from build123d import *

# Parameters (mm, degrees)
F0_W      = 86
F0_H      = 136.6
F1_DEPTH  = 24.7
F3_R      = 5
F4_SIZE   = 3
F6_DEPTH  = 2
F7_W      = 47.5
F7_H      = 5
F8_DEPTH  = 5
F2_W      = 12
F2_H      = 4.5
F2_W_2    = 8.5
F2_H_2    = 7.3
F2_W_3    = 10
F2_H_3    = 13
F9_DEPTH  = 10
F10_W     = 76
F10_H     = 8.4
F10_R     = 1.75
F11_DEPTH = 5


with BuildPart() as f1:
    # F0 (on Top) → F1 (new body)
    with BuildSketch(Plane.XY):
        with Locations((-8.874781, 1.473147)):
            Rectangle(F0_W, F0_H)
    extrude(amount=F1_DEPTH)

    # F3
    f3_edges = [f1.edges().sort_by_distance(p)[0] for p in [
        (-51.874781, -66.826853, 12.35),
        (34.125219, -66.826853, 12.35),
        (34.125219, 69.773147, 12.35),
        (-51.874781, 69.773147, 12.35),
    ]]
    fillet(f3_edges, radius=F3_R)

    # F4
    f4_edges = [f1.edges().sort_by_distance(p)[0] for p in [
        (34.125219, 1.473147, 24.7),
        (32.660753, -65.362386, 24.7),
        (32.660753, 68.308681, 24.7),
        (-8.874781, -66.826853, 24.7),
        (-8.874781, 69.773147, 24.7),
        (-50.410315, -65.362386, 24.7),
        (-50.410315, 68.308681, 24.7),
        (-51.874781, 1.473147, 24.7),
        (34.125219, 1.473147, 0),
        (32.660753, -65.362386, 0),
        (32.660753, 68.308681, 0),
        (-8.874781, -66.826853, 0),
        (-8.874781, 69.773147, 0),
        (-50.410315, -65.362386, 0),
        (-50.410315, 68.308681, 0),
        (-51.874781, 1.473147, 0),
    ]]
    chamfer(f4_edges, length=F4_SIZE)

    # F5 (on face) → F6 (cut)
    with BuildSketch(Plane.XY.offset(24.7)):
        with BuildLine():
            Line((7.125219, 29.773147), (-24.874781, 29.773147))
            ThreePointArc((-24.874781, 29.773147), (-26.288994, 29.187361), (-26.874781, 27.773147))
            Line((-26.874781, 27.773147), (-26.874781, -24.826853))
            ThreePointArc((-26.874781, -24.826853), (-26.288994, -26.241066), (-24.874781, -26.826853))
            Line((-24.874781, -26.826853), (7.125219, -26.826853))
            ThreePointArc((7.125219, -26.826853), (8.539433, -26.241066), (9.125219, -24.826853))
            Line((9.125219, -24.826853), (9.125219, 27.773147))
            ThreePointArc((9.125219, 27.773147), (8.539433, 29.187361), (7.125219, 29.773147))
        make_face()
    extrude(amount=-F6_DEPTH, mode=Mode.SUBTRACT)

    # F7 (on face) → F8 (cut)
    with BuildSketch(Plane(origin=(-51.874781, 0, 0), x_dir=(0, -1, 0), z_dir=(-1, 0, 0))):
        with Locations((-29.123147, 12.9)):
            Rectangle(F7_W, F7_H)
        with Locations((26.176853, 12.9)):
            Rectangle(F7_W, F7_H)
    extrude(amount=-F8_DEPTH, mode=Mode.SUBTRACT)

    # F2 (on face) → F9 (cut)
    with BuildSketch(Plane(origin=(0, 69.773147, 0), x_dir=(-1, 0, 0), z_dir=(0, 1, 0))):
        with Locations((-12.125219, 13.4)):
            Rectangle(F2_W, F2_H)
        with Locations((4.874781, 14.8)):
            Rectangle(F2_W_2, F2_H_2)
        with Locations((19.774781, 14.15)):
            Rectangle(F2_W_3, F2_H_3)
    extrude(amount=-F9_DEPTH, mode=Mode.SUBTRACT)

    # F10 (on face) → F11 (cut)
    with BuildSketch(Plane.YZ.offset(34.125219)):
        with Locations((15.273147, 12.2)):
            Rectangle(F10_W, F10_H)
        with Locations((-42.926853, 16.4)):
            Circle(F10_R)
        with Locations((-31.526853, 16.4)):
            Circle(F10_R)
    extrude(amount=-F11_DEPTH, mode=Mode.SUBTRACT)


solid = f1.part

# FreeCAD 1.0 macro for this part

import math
import FreeCAD as App
import Part
import Sketcher
from FreeCAD import Vector
Q = App.Units.Quantity


def edges_at(feature, points):
    """Names of the edges that pass closest to the given points."""
    edges = feature.Shape.Edges
    near = lambda p: min(range(len(edges)), key=lambda i: edges[i].distToShape(Part.Vertex(*p))[0])
    return sorted({f"Edge{near(p) + 1}" for p in points})


def add_polygon(sketch, points):
    """Adds a closed chain of lines whose ends are joined by coincident constraints."""
    first, n = sketch.GeometryCount, len(points)
    for a, b in zip(points, points[1:] + points[:1]):
        sketch.addGeometry(Part.LineSegment(App.Vector(*a, 0), App.Vector(*b, 0)), False)
    for i in range(n):
        sketch.addConstraint(Sketcher.Constraint("Coincident", first + i, 2, first + (i + 1) % n, 1))

doc = App.newDocument("Part")
body = doc.addObject("PartDesign::Body", "Body")

sketch1 = doc.addObject("Sketcher::SketchObject", "Sketch")
body.addObject(sketch1)
sketch1.AttachmentSupport = (doc.XY_Plane, [""])
sketch1.MapMode = "FlatFace"
add_polygon(sketch1, [(-52, 70), (-52, -67), (34, -67), (34, 70)])
sketch1.addConstraint([
    Sketcher.Constraint("Vertical", 0),
    Sketcher.Constraint("Horizontal", 1),
    Sketcher.Constraint("Vertical", 2),
    Sketcher.Constraint("Horizontal", 3),
    Sketcher.Constraint("DistanceX", 1, 1, 1, 2, Q("86 mm")),
    Sketcher.Constraint("DistanceY", 0, 2, 0, 1, Q("136.6 mm")),
    Sketcher.Constraint("DistanceX", 0, 2, -1, 1, Q("51.874781 mm")),
    Sketcher.Constraint("DistanceY", 0, 2, -1, 1, Q("66.826853 mm")),
])
pad1 = doc.addObject("PartDesign::Pad", "Pad")
body.addObject(pad1)
pad1.Profile = sketch1
pad1.Length = 24.7
doc.recompute()

fillet = doc.addObject("PartDesign::Fillet", "Fillet")
body.addObject(fillet)
fillet.Base = (pad1, edges_at(pad1, [
    (-51.875, -66.827, 12.35),
    (34.125, -66.827, 12.35),
    (34.125, 69.773, 12.35),
    (-51.875, 69.773, 12.35),
]))
fillet.Radius = 5
doc.recompute()

chamfer = doc.addObject("PartDesign::Chamfer", "Chamfer")
body.addObject(chamfer)
chamfer.Base = (fillet, edges_at(fillet, [
    (34.125, 1.473, 24.7),
    (32.661, -65.362, 24.7),
    (32.661, 68.309, 24.7),
    (-8.875, -66.827, 24.7),
    (-8.875, 69.773, 24.7),
    (-50.41, -65.362, 24.7),
    (-50.41, 68.309, 24.7),
    (-51.875, 1.473, 24.7),
    (34.125, 1.473, 0),
    (32.661, -65.362, 0),
    (32.661, 68.309, 0),
    (-8.875, -66.827, 0),
    (-8.875, 69.773, 0),
    (-50.41, -65.362, 0),
    (-50.41, 68.309, 0),
    (-51.875, 1.473, 0),
]))
chamfer.Size = 3

sketch2 = doc.addObject("Sketcher::SketchObject", "Sketch001")
body.addObject(sketch2)
sketch2.AttachmentSupport = (doc.XY_Plane, [""])
sketch2.MapMode = "FlatFace"
sketch2.AttachmentOffset = App.Placement(Vector(0, 0, 24.7), App.Rotation())
sketch2.addGeometry([
    Part.LineSegment(Vector(7.1, 29.8, 0), Vector(-24.9, 29.8, 0)),
    Part.ArcOfCircle(Part.Circle(Vector(-24.9, 27.8, 0), Vector(0, 0, 1), 2), math.radians(90), math.radians(180)),
    Part.LineSegment(Vector(-26.9, 27.8, 0), Vector(-26.9, -24.8, 0)),
    Part.ArcOfCircle(Part.Circle(Vector(-24.9, -24.8, 0), Vector(0, 0, 1), 2), math.radians(-180), math.radians(-90)),
    Part.LineSegment(Vector(-24.9, -26.8, 0), Vector(7.1, -26.8, 0)),
    Part.ArcOfCircle(Part.Circle(Vector(7.1, -24.8, 0), Vector(0, 0, 1), 2), math.radians(-90), math.radians(0)),
    Part.LineSegment(Vector(9.1, -24.8, 0), Vector(9.1, 27.8, 0)),
    Part.ArcOfCircle(Part.Circle(Vector(7.1, 27.8, 0), Vector(0, 0, 1), 2), math.radians(0), math.radians(90)),
], False)
sketch2.addConstraint([
    Sketcher.Constraint("Tangent", 0, 2, 1, 1),
    Sketcher.Constraint("Tangent", 1, 2, 2, 1),
    Sketcher.Constraint("Tangent", 2, 2, 3, 1),
    Sketcher.Constraint("Tangent", 3, 2, 4, 1),
    Sketcher.Constraint("Tangent", 4, 2, 5, 1),
    Sketcher.Constraint("Tangent", 5, 2, 6, 1),
    Sketcher.Constraint("Tangent", 6, 2, 7, 1),
    Sketcher.Constraint("Tangent", 7, 2, 0, 1),
    Sketcher.Constraint("Horizontal", 0),
    Sketcher.Constraint("Vertical", 2),
    Sketcher.Constraint("Horizontal", 4),
    Sketcher.Constraint("Vertical", 6),
    Sketcher.Constraint("Equal", 1, 3),
    Sketcher.Constraint("Equal", 3, 5),
    Sketcher.Constraint("Equal", 5, 7),
    Sketcher.Constraint("Radius", 1, Q("2 mm")),
    Sketcher.Constraint("DistanceX", 0, 2, 0, 1, Q("32 mm")),
    Sketcher.Constraint("DistanceY", 2, 2, 2, 1, Q("52.6 mm")),
    Sketcher.Constraint("DistanceX", 1, 3, -1, 1, Q("24.874781 mm")),
    Sketcher.Constraint("DistanceY", 3, 3, -1, 1, Q("24.826851 mm")),
])
pocket1 = doc.addObject("PartDesign::Pocket", "Pocket")
body.addObject(pocket1)
pocket1.Profile = sketch2
pocket1.Length = 2

sketch3 = doc.addObject("Sketcher::SketchObject", "Sketch002")
body.addObject(sketch3)
sketch3.AttachmentSupport = (doc.YZ_Plane, [""])
sketch3.MapMode = "FlatFace"
sketch3.AttachmentOffset = App.Placement(Vector(0, 0, -51.874781), App.Rotation())
add_polygon(sketch3, [(53, 15), (53, 10), (5, 10), (5, 15)])
add_polygon(sketch3, [(-2, 15), (-2, 10), (-50, 10), (-50, 15)])
sketch3.addConstraint([
    Sketcher.Constraint("Vertical", 0),
    Sketcher.Constraint("Horizontal", 1),
    Sketcher.Constraint("Vertical", 2),
    Sketcher.Constraint("Horizontal", 3),
    Sketcher.Constraint("Vertical", 4),
    Sketcher.Constraint("Horizontal", 5),
    Sketcher.Constraint("Vertical", 6),
    Sketcher.Constraint("Horizontal", 7),
    Sketcher.Constraint("Horizontal", 1, 2, 4, 2),
    Sketcher.Constraint("Horizontal", 3, 2, 6, 2),
    Sketcher.Constraint("Equal", 3, 5),
    Sketcher.Constraint("DistanceY", 0, 2, 0, 1, Q("5 mm")),
    Sketcher.Constraint("DistanceX", 1, 2, 1, 1, Q("47.5 mm")),
    Sketcher.Constraint("DistanceY", -1, 1, 0, 2, Q("10.4 mm")),
    Sketcher.Constraint("DistanceX", 4, 2, 1, 2, Q("7.8 mm")),
    Sketcher.Constraint("DistanceX", -1, 1, 0, 2, Q("52.873147 mm")),
])
pocket2 = doc.addObject("PartDesign::Pocket", "Pocket001")
body.addObject(pocket2)
pocket2.Profile = sketch3
pocket2.Length = 5
pocket2.Reversed = True

sketch4 = doc.addObject("Sketcher::SketchObject", "Sketch003")
body.addObject(sketch4)
sketch4.AttachmentSupport = (doc.XZ_Plane, [""])
sketch4.MapMode = "FlatFace"
sketch4.AttachmentOffset = App.Placement(Vector(0, 0, -69.773147), App.Rotation())
add_polygon(sketch4, [(18.1, 15.7), (18.1, 11.2), (6.1, 11.2), (6.1, 15.7)])
add_polygon(sketch4, [(-0.6, 18.4), (-0.6, 11.2), (-9.1, 11.2), (-9.1, 18.4)])
add_polygon(sketch4, [(-14.8, 20.6), (-14.8, 7.7), (-24.8, 7.7), (-24.8, 20.6)])
sketch4.addConstraint([
    Sketcher.Constraint("Vertical", 0),
    Sketcher.Constraint("Horizontal", 1),
    Sketcher.Constraint("Vertical", 2),
    Sketcher.Constraint("Horizontal", 3),
    Sketcher.Constraint("Vertical", 4),
    Sketcher.Constraint("Horizontal", 5),
    Sketcher.Constraint("Vertical", 6),
    Sketcher.Constraint("Horizontal", 7),
    Sketcher.Constraint("Vertical", 8),
    Sketcher.Constraint("Horizontal", 9),
    Sketcher.Constraint("Vertical", 10),
    Sketcher.Constraint("Horizontal", 11),
    Sketcher.Constraint("Horizontal", 1, 2, 4, 2),
    Sketcher.Constraint("DistanceX", 1, 2, 1, 1, Q("12 mm")),
    Sketcher.Constraint("DistanceX", 9, 2, 9, 1, Q("10 mm")),
    Sketcher.Constraint("DistanceY", 8, 2, 8, 1, Q("13 mm")),
    Sketcher.Constraint("DistanceX", 5, 2, 5, 1, Q("8.5 mm")),
    Sketcher.Constraint("DistanceY", 0, 2, 0, 1, Q("4.5 mm")),
    Sketcher.Constraint("DistanceY", 4, 2, 4, 1, Q("7.3 mm")),
    Sketcher.Constraint("DistanceY", 8, 2, 5, 2, Q("3.5 mm")),
    Sketcher.Constraint("DistanceX", 8, 2, 1, 2, Q("20.9 mm")),
    Sketcher.Constraint("DistanceY", -1, 1, 0, 2, Q("11.15 mm")),
    Sketcher.Constraint("DistanceX", 4, 2, 1, 2, Q("6.75 mm")),
    Sketcher.Constraint("DistanceX", -1, 1, 0, 2, Q("18.125219 mm")),
])
pocket3 = doc.addObject("PartDesign::Pocket", "Pocket002")
body.addObject(pocket3)
pocket3.Profile = sketch4
pocket3.Length = 10
pocket3.Reversed = True

sketch5 = doc.addObject("Sketcher::SketchObject", "Sketch004")
body.addObject(sketch5)
sketch5.AttachmentSupport = (doc.YZ_Plane, [""])
sketch5.MapMode = "FlatFace"
sketch5.AttachmentOffset = App.Placement(Vector(0, 0, 34.125219), App.Rotation())
add_polygon(sketch5, [(-22.7, 16.4), (-22.7, 8), (53.3, 8), (53.3, 16.4)])
sketch5.addGeometry(Part.Circle(Vector(-42.9, 16.4, 0), Vector(0, 0, 1), 1.8), False)
sketch5.addGeometry(Part.Circle(Vector(-31.5, 16.4, 0), Vector(0, 0, 1), 1.8), False)
sketch5.addConstraint([
    Sketcher.Constraint("Vertical", 0),
    Sketcher.Constraint("Horizontal", 1),
    Sketcher.Constraint("Vertical", 2),
    Sketcher.Constraint("Horizontal", 3),
    Sketcher.Constraint("Equal", 4, 5),
    Sketcher.Constraint("Horizontal", 4, 3, 5, 3),
    Sketcher.Constraint("Horizontal", 5, 3, 2, 2),
    Sketcher.Constraint("Diameter", 4, Q("3.5 mm")),
    Sketcher.Constraint("DistanceX", 1, 1, 1, 2, Q("76 mm")),
    Sketcher.Constraint("DistanceY", 0, 2, 0, 1, Q("8.4 mm")),
    Sketcher.Constraint("DistanceY", -1, 1, 0, 2, Q("8 mm")),
    Sketcher.Constraint("DistanceX", 4, 3, 5, 3, Q("11.4 mm")),
    Sketcher.Constraint("DistanceX", 5, 3, 0, 2, Q("8.8 mm")),
    Sketcher.Constraint("DistanceX", 4, 3, -1, 1, Q("42.926853 mm")),
])
pocket4 = doc.addObject("PartDesign::Pocket", "Pocket003")
body.addObject(pocket4)
pocket4.Profile = sketch5
pocket4.Length = 5

doc.recompute()
